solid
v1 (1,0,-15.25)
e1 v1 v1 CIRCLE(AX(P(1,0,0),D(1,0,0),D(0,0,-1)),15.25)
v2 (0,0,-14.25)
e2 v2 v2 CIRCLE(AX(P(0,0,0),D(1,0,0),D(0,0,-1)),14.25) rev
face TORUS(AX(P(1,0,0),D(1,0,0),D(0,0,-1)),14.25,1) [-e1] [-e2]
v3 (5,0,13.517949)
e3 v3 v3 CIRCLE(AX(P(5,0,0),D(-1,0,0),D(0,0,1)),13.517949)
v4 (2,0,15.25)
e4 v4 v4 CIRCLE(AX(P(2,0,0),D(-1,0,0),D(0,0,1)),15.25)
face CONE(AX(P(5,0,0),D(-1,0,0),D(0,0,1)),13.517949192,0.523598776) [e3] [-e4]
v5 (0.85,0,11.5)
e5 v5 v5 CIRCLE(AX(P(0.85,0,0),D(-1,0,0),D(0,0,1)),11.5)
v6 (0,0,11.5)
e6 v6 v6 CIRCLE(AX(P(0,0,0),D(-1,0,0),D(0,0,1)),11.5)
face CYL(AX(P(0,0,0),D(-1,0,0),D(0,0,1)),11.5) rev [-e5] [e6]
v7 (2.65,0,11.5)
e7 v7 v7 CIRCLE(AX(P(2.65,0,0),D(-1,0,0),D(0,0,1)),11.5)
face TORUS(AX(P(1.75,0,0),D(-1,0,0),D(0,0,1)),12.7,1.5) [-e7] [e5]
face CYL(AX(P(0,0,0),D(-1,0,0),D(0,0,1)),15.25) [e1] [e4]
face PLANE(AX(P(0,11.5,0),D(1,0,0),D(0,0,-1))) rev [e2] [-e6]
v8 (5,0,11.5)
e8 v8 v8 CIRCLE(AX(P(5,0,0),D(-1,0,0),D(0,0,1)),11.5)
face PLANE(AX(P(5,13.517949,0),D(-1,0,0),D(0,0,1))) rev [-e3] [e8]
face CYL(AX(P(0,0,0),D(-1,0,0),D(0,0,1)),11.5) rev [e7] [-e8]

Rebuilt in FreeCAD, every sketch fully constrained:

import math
import FreeCAD as App
import Part
import Sketcher
from FreeCAD import Vector
Q = App.Units.Quantity


def edges_at(feature, points):
    """Names of the edges that pass closest to the given points."""
    edges = feature.Shape.Edges
    near = lambda p: min(range(len(edges)), key=lambda i: edges[i].distToShape(Part.Vertex(*p))[0])
    return sorted({f"Edge{near(p) + 1}" for p in points})

doc = App.newDocument("Part")
params = doc.addObject("Spreadsheet::Sheet", "Params")
for row, (alias, value) in enumerate([
    ("sketch1_radius", "1.5 mm"),
    ("sketch1_width", "2 mm"),
    ("sketch1_width2", "0.85 mm"),
    ("sketch1_width3", "2.35 mm"),
    ("sketch1_height", "3.75 mm"),
    ("revolution_angle", "360 deg"),
    ("fillet_radius", "1 mm"),
], start=1):
    params.set(f"A{row}", alias)
    params.set(f"B{row}", "=" + value)
    params.setAlias(f"B{row}", alias)

body = doc.addObject("PartDesign::Body", "Body")

# Sketch on XY plane
sketch1 = body.newObject("Sketcher::SketchObject", "Sketch")
sketch1.AttachmentSupport = (doc.getObject("XY_Plane"), [""])
sketch1.MapMode = "FlatFace"
sketch1.addGeometry([
    Part.LineSegment(Vector(0, 15.2, 0), Vector(0, 11.5, 0)),  # 0
    Part.LineSegment(Vector(0, 11.5, 0), Vector(0.8, 11.5, 0)),  # 1
    Part.ArcOfCircle(Part.Circle(Vector(1.8, 12.7, 0), Vector(0, 0, 1), 1.5), math.radians(-127), math.radians(-53)),  # 2
    Part.LineSegment(Vector(2.6, 11.5, 0), Vector(5, 11.5, 0)),  # 3
    Part.LineSegment(Vector(5, 11.5, 0), Vector(5, 13.5, 0)),  # 4
    Part.LineSegment(Vector(5, 13.5, 0), Vector(2, 15.2, 0)),  # 5
    Part.LineSegment(Vector(2, 15.2, 0), Vector(0, 15.2, 0)),  # 6
], False)
sketch1.addConstraint([
    Sketcher.Constraint("Coincident", 0, 2, 1, 1),
    Sketcher.Constraint("Coincident", 1, 2, 2, 1),
    Sketcher.Constraint("Coincident", 2, 2, 3, 1),
    Sketcher.Constraint("Coincident", 3, 2, 4, 1),
    Sketcher.Constraint("Coincident", 4, 2, 5, 1),
    Sketcher.Constraint("Coincident", 5, 2, 6, 1),
    Sketcher.Constraint("Coincident", 6, 2, 0, 1),
    Sketcher.Constraint("Vertical", 0),
    Sketcher.Constraint("Horizontal", 1),
    Sketcher.Constraint("Horizontal", 3),
    Sketcher.Constraint("Vertical", 4),
    Sketcher.Constraint("Horizontal", 6),
    Sketcher.Constraint("PointOnObject", 0, 2, -2),
    Sketcher.Constraint("Horizontal", 1, 2, 2, 2),
    Sketcher.Constraint("Radius", 2, 1.5),
    Sketcher.Constraint("DistanceX", 6, 2, 6, 1, 2.0),
    Sketcher.Constraint("Angle", 5, Q("150 deg")),
    Sketcher.Constraint("DistanceX", -1, 1, 3, 2, 5.0),
    Sketcher.Constraint("DistanceX", 1, 1, 1, 2, 0.85),
    Sketcher.Constraint("DistanceX", 3, 1, 3, 2, 2.35),
    Sketcher.Constraint("DistanceY", 0, 2, 0, 1, 3.75),
    Sketcher.Constraint("DistanceY", -1, 1, 2, 3, 12.7),
])
sketch1.setExpression("Constraints[14]", "Params.sketch1_radius")
sketch1.setExpression("Constraints[15]", "Params.sketch1_width")
sketch1.setExpression("Constraints[18]", "Params.sketch1_width2")
sketch1.setExpression("Constraints[19]", "Params.sketch1_width3")
sketch1.setExpression("Constraints[20]", "Params.sketch1_height")
revolution = body.newObject("PartDesign::Revolution", "Revolution")
revolution.Profile = sketch1
revolution.ReferenceAxis = (sketch1, ["H_Axis"])
revolution.setExpression("Angle", "Params.revolution_angle")
doc.recompute()

fillet = body.newObject("PartDesign::Fillet", "Fillet")
fillet.Base = (revolution, edges_at(revolution, [(0, -15.25, 0)]))
fillet.setExpression("Radius", "Params.fillet_radius")

doc.recompute()
